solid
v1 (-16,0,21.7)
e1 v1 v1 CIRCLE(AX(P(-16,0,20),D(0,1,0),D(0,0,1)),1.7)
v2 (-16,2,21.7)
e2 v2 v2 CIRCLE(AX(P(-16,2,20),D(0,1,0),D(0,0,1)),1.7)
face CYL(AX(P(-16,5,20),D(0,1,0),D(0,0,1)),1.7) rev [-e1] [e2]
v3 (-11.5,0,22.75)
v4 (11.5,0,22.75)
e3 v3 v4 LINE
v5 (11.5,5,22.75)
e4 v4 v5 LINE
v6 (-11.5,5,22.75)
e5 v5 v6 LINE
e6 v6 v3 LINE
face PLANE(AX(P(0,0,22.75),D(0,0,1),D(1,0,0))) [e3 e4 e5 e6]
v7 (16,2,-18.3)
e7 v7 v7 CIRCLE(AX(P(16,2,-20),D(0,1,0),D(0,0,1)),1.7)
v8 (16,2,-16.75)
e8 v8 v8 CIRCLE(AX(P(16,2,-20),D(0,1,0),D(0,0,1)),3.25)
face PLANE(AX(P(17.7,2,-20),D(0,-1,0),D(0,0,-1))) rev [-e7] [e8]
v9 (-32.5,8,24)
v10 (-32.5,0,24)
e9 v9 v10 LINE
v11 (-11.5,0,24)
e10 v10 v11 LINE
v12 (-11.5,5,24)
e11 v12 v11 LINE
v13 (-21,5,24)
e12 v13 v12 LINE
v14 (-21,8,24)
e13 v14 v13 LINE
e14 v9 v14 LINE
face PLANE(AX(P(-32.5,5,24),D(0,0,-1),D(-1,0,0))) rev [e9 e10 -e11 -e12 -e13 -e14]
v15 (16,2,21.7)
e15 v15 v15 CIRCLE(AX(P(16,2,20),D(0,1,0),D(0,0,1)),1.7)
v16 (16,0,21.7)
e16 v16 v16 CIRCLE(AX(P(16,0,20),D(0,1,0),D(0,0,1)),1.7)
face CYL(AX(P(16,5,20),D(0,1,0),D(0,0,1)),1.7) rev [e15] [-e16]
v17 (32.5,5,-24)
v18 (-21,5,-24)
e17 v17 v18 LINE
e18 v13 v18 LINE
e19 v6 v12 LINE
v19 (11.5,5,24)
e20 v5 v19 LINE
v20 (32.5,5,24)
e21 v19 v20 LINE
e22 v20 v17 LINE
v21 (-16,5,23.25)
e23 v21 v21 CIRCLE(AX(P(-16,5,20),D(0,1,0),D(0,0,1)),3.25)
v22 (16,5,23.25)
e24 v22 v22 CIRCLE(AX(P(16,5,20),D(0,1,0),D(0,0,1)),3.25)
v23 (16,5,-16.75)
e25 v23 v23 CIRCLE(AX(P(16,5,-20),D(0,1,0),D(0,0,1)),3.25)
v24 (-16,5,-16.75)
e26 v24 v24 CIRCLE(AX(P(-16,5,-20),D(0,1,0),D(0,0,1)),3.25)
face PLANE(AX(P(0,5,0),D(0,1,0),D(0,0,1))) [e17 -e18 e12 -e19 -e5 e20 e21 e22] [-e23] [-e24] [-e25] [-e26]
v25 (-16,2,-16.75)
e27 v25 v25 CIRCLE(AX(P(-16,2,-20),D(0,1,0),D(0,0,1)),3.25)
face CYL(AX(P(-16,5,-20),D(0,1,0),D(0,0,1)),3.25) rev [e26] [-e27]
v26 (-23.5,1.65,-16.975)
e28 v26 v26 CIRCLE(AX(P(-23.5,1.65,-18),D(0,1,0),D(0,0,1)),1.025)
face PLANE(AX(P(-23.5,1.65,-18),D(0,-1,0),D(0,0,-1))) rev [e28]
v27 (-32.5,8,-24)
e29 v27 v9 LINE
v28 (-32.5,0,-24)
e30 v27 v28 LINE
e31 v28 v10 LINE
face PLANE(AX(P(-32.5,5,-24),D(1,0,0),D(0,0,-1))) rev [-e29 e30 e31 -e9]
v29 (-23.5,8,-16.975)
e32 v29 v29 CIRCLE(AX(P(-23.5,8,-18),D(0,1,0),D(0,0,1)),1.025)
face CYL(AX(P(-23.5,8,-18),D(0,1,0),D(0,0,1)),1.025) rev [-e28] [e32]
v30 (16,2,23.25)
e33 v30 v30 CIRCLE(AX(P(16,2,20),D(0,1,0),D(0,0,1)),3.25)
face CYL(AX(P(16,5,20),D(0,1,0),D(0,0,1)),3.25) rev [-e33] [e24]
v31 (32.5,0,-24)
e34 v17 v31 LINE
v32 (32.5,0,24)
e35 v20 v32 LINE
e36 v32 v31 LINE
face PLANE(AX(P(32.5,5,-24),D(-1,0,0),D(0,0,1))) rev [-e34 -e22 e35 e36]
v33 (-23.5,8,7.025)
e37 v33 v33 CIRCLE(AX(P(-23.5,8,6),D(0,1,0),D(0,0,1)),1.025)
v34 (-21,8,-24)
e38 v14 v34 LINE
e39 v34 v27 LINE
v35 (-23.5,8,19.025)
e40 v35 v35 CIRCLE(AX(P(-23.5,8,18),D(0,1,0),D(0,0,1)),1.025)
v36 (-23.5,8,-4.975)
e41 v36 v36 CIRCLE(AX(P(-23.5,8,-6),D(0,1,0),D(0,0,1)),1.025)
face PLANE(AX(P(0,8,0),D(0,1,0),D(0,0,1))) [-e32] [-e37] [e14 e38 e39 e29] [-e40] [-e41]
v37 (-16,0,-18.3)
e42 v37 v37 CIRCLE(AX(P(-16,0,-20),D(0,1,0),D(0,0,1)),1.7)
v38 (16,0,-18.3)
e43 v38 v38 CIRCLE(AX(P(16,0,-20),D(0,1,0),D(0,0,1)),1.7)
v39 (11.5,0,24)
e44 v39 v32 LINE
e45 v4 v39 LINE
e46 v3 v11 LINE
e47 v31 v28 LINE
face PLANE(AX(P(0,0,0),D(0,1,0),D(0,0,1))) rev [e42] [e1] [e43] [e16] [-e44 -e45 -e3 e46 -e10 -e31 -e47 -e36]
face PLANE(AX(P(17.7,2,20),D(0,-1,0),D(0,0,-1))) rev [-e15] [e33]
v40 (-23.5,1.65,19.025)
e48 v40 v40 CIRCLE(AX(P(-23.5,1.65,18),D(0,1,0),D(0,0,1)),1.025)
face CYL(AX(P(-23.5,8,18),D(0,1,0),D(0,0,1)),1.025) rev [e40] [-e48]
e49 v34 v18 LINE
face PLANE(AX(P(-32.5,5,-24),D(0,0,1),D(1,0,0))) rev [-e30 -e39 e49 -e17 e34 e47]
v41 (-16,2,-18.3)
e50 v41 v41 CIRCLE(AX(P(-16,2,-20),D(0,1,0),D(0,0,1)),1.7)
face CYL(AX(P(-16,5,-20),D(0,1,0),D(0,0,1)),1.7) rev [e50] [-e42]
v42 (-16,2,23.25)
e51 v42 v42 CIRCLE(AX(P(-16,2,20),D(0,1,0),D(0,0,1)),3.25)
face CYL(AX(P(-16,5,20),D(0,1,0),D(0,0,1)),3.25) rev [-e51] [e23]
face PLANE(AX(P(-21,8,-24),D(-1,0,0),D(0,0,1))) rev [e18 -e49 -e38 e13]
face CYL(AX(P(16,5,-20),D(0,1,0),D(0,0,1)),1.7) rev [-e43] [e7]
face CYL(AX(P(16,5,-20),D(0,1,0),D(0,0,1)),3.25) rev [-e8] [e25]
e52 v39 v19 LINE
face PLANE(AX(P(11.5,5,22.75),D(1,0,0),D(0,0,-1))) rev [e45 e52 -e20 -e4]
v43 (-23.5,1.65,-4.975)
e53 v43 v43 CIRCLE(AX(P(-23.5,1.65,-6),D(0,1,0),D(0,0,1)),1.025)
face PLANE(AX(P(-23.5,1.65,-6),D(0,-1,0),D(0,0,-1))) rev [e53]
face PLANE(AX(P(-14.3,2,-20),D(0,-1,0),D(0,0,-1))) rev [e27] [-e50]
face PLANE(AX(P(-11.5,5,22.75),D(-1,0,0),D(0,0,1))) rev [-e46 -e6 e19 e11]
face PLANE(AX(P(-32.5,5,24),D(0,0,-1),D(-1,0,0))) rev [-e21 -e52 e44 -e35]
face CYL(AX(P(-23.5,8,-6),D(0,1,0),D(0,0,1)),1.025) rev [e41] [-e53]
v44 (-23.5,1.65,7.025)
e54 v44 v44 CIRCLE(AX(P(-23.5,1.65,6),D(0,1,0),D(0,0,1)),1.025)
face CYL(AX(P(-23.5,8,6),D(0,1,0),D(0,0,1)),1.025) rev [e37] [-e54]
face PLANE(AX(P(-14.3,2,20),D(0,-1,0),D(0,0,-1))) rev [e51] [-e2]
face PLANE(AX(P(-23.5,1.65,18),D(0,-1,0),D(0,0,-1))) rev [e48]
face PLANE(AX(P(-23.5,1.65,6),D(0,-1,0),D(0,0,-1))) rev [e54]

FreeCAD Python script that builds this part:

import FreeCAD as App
import Part
import Sketcher
from FreeCAD import Vector


def add_polygon(sketch, points):
    """Adds a closed chain of lines whose ends are joined by coincident constraints."""
    first, n = sketch.GeometryCount, len(points)
    for a, b in zip(points, points[1:] + points[:1]):
        sketch.addGeometry(Part.LineSegment(App.Vector(*a, 0), App.Vector(*b, 0)), False)
    for i in range(n):
        sketch.addConstraint(Sketcher.Constraint("Coincident", first + i, 2, first + (i + 1) % n, 1))

doc = App.newDocument("Part")
body = doc.addObject("PartDesign::Body", "Body")

sketch1 = doc.addObject("Sketcher::SketchObject", "Sketch")
body.addObject(sketch1)
sketch1.AttachmentSupport = (doc.XZ_Plane, [""])
sketch1.MapMode = "FlatFace"
add_polygon(sketch1, [(-32, -24), (-32, 24), (32, 24), (32, -24)])
sketch1.addConstraint(Sketcher.Constraint("Vertical", 0))
sketch1.addConstraint(Sketcher.Constraint("Horizontal", 1))
sketch1.addConstraint(Sketcher.Constraint("Vertical", 2))
sketch1.addConstraint(Sketcher.Constraint("Horizontal", 3))
sketch1.addConstraint(Sketcher.Constraint("Symmetric", 0, 2, 2, 2, -1, 1))
sketch1.addConstraint(Sketcher.Constraint("DistanceX", 1, 1, 1, 2, 65.0))
sketch1.addConstraint(Sketcher.Constraint("DistanceY", 0, 1, 0, 2, 48.0))
pad1 = doc.addObject("PartDesign::Pad", "Pad")
body.addObject(pad1)
pad1.Profile = sketch1
pad1.Length = 5
pad1.Reversed = True

sketch2 = doc.addObject("Sketcher::SketchObject", "Sketch001")
body.addObject(sketch2)
sketch2.AttachmentSupport = (doc.XZ_Plane, [""])
sketch2.MapMode = "FlatFace"
sketch2.AttachmentOffset = App.Placement(Vector(0, 0, -5), App.Rotation())
add_polygon(sketch2, [(-32, -24), (-32, 24), (-21, 24), (-21, -24)])
sketch2.addConstraint(Sketcher.Constraint("Vertical", 0))
sketch2.addConstraint(Sketcher.Constraint("Horizontal", 1))
sketch2.addConstraint(Sketcher.Constraint("Vertical", 2))
sketch2.addConstraint(Sketcher.Constraint("Horizontal", 3))
sketch2.addConstraint(Sketcher.Constraint("DistanceY", 0, 1, 0, 2, 48.0))
sketch2.addConstraint(Sketcher.Constraint("DistanceX", 1, 1, 1, 2, 11.5))
sketch2.addConstraint(Sketcher.Constraint("DistanceY", -1, 1, 0, 2, 24.0))
sketch2.addConstraint(Sketcher.Constraint("DistanceX", 1, 2, -1, 1, 21.0))
pad2 = doc.addObject("PartDesign::Pad", "Pad001")
body.addObject(pad2)
pad2.Profile = sketch2
pad2.Length = 3
pad2.Reversed = True

sketch3 = doc.addObject("Sketcher::SketchObject", "Sketch002")
body.addObject(sketch3)
sketch3.AttachmentSupport = (doc.XZ_Plane, [""])
sketch3.MapMode = "FlatFace"
sketch3.AttachmentOffset = App.Placement(Vector(0, 0, -8), App.Rotation())
sketch3.addGeometry(Part.Circle(Vector(-23.5, -18, 0), Vector(0, 0, 1), 1), False)
sketch3.addGeometry(Part.Circle(Vector(-23.5, -6, 0), Vector(0, 0, 1), 1), False)
sketch3.addGeometry(Part.Circle(Vector(-23.5, 18, 0), Vector(0, 0, 1), 1), False)
sketch3.addGeometry(Part.Circle(Vector(-23.5, 6, 0), Vector(0, 0, 1), 1), False)
sketch3.addConstraint(Sketcher.Constraint("Equal", 0, 1))
sketch3.addConstraint(Sketcher.Constraint("Equal", 1, 2))
sketch3.addConstraint(Sketcher.Constraint("Equal", 2, 3))
sketch3.addConstraint(Sketcher.Constraint("Symmetric", 0, 3, 2, 3, -1))
sketch3.addConstraint(Sketcher.Constraint("Symmetric", 1, 3, 3, 3, -1))
sketch3.addConstraint(Sketcher.Constraint("Vertical", 0, 3, 1, 3))
sketch3.addConstraint(Sketcher.Constraint("Diameter", 0, 2.05))
sketch3.addConstraint(Sketcher.Constraint("DistanceY", 0, 3, -1, 1, 18.0))
sketch3.addConstraint(Sketcher.Constraint("DistanceY", 1, 3, -1, 1, 6.0))
sketch3.addConstraint(Sketcher.Constraint("DistanceX", 0, 3, -1, 1, 23.5))
doc.recompute()
hole = doc.addObject("PartDesign::Hole", "Hole")
body.addObject(hole)
hole.Profile = sketch3
hole.ThreadType = "None"
hole.Diameter = 2.05
hole.DepthType = "Dimension"
hole.Depth = 6.35
hole.DrillPoint = "Flat"
hole.Reversed = True

sketch4 = doc.addObject("Sketcher::SketchObject", "Sketch003")
body.addObject(sketch4)
sketch4.AttachmentSupport = (doc.XZ_Plane, [""])
sketch4.MapMode = "FlatFace"
sketch4.AttachmentOffset = App.Placement(Vector(0, 0, -5), App.Rotation())
sketch4.addGeometry(Part.Circle(Vector(-16, -20, 0), Vector(0, 0, 1), 1.7), False)
sketch4.addGeometry(Part.Circle(Vector(16, -20, 0), Vector(0, 0, 1), 1.7), False)
sketch4.addGeometry(Part.Circle(Vector(-16, 20, 0), Vector(0, 0, 1), 1.7), False)
sketch4.addGeometry(Part.Circle(Vector(16, 20, 0), Vector(0, 0, 1), 1.7), False)
sketch4.addConstraint(Sketcher.Constraint("Equal", 0, 1))
sketch4.addConstraint(Sketcher.Constraint("Equal", 1, 2))
sketch4.addConstraint(Sketcher.Constraint("Equal", 2, 3))
sketch4.addConstraint(Sketcher.Constraint("Symmetric", 1, 3, 2, 3, -1, 1))
sketch4.addConstraint(Sketcher.Constraint("Symmetric", 0, 3, 3, 3, -1, 1))
sketch4.addConstraint(Sketcher.Constraint("Symmetric", 0, 3, 1, 3, -2))
sketch4.addConstraint(Sketcher.Constraint("Diameter", 0, 3.4))
sketch4.addConstraint(Sketcher.Constraint("DistanceX", 0, 3, -1, 1, 16.0))
sketch4.addConstraint(Sketcher.Constraint("DistanceY", 0, 3, -1, 1, 20.0))
doc.recompute()
hole2 = doc.addObject("PartDesign::Hole", "Hole001")
body.addObject(hole2)
hole2.Profile = sketch4
hole2.ThreadType = "None"
hole2.Diameter = 3.4
hole2.DepthType = "ThroughAll"
hole2.HoleCutType = "Counterbore"
hole2.HoleCutDiameter = 6.5
hole2.HoleCutDepth = 3
hole2.Reversed = True

sketch5 = doc.addObject("Sketcher::SketchObject", "Sketch004")
body.addObject(sketch5)
sketch5.AttachmentSupport = (doc.XY_Plane, [""])
sketch5.MapMode = "FlatFace"
sketch5.AttachmentOffset = App.Placement(Vector(0, 0, 24), App.Rotation())
add_polygon(sketch5, [(-12, 5), (-12, 0), (12, 0), (12, 5)])
sketch5.addConstraint(Sketcher.Constraint("Vertical", 0))
sketch5.addConstraint(Sketcher.Constraint("Horizontal", 1))
sketch5.addConstraint(Sketcher.Constraint("Vertical", 2))
sketch5.addConstraint(Sketcher.Constraint("Horizontal", 3))
sketch5.addConstraint(Sketcher.Constraint("Symmetric", 0, 2, 1, 2, -1, 1))
sketch5.addConstraint(Sketcher.Constraint("DistanceX", 1, 1, 1, 2, 23.0))
sketch5.addConstraint(Sketcher.Constraint("DistanceY", 0, 2, 0, 1, 5.0))
pocket1 = doc.addObject("PartDesign::Pocket", "Pocket")
body.addObject(pocket1)
pocket1.Profile = sketch5
pocket1.Length = 1.25

doc.recompute()
